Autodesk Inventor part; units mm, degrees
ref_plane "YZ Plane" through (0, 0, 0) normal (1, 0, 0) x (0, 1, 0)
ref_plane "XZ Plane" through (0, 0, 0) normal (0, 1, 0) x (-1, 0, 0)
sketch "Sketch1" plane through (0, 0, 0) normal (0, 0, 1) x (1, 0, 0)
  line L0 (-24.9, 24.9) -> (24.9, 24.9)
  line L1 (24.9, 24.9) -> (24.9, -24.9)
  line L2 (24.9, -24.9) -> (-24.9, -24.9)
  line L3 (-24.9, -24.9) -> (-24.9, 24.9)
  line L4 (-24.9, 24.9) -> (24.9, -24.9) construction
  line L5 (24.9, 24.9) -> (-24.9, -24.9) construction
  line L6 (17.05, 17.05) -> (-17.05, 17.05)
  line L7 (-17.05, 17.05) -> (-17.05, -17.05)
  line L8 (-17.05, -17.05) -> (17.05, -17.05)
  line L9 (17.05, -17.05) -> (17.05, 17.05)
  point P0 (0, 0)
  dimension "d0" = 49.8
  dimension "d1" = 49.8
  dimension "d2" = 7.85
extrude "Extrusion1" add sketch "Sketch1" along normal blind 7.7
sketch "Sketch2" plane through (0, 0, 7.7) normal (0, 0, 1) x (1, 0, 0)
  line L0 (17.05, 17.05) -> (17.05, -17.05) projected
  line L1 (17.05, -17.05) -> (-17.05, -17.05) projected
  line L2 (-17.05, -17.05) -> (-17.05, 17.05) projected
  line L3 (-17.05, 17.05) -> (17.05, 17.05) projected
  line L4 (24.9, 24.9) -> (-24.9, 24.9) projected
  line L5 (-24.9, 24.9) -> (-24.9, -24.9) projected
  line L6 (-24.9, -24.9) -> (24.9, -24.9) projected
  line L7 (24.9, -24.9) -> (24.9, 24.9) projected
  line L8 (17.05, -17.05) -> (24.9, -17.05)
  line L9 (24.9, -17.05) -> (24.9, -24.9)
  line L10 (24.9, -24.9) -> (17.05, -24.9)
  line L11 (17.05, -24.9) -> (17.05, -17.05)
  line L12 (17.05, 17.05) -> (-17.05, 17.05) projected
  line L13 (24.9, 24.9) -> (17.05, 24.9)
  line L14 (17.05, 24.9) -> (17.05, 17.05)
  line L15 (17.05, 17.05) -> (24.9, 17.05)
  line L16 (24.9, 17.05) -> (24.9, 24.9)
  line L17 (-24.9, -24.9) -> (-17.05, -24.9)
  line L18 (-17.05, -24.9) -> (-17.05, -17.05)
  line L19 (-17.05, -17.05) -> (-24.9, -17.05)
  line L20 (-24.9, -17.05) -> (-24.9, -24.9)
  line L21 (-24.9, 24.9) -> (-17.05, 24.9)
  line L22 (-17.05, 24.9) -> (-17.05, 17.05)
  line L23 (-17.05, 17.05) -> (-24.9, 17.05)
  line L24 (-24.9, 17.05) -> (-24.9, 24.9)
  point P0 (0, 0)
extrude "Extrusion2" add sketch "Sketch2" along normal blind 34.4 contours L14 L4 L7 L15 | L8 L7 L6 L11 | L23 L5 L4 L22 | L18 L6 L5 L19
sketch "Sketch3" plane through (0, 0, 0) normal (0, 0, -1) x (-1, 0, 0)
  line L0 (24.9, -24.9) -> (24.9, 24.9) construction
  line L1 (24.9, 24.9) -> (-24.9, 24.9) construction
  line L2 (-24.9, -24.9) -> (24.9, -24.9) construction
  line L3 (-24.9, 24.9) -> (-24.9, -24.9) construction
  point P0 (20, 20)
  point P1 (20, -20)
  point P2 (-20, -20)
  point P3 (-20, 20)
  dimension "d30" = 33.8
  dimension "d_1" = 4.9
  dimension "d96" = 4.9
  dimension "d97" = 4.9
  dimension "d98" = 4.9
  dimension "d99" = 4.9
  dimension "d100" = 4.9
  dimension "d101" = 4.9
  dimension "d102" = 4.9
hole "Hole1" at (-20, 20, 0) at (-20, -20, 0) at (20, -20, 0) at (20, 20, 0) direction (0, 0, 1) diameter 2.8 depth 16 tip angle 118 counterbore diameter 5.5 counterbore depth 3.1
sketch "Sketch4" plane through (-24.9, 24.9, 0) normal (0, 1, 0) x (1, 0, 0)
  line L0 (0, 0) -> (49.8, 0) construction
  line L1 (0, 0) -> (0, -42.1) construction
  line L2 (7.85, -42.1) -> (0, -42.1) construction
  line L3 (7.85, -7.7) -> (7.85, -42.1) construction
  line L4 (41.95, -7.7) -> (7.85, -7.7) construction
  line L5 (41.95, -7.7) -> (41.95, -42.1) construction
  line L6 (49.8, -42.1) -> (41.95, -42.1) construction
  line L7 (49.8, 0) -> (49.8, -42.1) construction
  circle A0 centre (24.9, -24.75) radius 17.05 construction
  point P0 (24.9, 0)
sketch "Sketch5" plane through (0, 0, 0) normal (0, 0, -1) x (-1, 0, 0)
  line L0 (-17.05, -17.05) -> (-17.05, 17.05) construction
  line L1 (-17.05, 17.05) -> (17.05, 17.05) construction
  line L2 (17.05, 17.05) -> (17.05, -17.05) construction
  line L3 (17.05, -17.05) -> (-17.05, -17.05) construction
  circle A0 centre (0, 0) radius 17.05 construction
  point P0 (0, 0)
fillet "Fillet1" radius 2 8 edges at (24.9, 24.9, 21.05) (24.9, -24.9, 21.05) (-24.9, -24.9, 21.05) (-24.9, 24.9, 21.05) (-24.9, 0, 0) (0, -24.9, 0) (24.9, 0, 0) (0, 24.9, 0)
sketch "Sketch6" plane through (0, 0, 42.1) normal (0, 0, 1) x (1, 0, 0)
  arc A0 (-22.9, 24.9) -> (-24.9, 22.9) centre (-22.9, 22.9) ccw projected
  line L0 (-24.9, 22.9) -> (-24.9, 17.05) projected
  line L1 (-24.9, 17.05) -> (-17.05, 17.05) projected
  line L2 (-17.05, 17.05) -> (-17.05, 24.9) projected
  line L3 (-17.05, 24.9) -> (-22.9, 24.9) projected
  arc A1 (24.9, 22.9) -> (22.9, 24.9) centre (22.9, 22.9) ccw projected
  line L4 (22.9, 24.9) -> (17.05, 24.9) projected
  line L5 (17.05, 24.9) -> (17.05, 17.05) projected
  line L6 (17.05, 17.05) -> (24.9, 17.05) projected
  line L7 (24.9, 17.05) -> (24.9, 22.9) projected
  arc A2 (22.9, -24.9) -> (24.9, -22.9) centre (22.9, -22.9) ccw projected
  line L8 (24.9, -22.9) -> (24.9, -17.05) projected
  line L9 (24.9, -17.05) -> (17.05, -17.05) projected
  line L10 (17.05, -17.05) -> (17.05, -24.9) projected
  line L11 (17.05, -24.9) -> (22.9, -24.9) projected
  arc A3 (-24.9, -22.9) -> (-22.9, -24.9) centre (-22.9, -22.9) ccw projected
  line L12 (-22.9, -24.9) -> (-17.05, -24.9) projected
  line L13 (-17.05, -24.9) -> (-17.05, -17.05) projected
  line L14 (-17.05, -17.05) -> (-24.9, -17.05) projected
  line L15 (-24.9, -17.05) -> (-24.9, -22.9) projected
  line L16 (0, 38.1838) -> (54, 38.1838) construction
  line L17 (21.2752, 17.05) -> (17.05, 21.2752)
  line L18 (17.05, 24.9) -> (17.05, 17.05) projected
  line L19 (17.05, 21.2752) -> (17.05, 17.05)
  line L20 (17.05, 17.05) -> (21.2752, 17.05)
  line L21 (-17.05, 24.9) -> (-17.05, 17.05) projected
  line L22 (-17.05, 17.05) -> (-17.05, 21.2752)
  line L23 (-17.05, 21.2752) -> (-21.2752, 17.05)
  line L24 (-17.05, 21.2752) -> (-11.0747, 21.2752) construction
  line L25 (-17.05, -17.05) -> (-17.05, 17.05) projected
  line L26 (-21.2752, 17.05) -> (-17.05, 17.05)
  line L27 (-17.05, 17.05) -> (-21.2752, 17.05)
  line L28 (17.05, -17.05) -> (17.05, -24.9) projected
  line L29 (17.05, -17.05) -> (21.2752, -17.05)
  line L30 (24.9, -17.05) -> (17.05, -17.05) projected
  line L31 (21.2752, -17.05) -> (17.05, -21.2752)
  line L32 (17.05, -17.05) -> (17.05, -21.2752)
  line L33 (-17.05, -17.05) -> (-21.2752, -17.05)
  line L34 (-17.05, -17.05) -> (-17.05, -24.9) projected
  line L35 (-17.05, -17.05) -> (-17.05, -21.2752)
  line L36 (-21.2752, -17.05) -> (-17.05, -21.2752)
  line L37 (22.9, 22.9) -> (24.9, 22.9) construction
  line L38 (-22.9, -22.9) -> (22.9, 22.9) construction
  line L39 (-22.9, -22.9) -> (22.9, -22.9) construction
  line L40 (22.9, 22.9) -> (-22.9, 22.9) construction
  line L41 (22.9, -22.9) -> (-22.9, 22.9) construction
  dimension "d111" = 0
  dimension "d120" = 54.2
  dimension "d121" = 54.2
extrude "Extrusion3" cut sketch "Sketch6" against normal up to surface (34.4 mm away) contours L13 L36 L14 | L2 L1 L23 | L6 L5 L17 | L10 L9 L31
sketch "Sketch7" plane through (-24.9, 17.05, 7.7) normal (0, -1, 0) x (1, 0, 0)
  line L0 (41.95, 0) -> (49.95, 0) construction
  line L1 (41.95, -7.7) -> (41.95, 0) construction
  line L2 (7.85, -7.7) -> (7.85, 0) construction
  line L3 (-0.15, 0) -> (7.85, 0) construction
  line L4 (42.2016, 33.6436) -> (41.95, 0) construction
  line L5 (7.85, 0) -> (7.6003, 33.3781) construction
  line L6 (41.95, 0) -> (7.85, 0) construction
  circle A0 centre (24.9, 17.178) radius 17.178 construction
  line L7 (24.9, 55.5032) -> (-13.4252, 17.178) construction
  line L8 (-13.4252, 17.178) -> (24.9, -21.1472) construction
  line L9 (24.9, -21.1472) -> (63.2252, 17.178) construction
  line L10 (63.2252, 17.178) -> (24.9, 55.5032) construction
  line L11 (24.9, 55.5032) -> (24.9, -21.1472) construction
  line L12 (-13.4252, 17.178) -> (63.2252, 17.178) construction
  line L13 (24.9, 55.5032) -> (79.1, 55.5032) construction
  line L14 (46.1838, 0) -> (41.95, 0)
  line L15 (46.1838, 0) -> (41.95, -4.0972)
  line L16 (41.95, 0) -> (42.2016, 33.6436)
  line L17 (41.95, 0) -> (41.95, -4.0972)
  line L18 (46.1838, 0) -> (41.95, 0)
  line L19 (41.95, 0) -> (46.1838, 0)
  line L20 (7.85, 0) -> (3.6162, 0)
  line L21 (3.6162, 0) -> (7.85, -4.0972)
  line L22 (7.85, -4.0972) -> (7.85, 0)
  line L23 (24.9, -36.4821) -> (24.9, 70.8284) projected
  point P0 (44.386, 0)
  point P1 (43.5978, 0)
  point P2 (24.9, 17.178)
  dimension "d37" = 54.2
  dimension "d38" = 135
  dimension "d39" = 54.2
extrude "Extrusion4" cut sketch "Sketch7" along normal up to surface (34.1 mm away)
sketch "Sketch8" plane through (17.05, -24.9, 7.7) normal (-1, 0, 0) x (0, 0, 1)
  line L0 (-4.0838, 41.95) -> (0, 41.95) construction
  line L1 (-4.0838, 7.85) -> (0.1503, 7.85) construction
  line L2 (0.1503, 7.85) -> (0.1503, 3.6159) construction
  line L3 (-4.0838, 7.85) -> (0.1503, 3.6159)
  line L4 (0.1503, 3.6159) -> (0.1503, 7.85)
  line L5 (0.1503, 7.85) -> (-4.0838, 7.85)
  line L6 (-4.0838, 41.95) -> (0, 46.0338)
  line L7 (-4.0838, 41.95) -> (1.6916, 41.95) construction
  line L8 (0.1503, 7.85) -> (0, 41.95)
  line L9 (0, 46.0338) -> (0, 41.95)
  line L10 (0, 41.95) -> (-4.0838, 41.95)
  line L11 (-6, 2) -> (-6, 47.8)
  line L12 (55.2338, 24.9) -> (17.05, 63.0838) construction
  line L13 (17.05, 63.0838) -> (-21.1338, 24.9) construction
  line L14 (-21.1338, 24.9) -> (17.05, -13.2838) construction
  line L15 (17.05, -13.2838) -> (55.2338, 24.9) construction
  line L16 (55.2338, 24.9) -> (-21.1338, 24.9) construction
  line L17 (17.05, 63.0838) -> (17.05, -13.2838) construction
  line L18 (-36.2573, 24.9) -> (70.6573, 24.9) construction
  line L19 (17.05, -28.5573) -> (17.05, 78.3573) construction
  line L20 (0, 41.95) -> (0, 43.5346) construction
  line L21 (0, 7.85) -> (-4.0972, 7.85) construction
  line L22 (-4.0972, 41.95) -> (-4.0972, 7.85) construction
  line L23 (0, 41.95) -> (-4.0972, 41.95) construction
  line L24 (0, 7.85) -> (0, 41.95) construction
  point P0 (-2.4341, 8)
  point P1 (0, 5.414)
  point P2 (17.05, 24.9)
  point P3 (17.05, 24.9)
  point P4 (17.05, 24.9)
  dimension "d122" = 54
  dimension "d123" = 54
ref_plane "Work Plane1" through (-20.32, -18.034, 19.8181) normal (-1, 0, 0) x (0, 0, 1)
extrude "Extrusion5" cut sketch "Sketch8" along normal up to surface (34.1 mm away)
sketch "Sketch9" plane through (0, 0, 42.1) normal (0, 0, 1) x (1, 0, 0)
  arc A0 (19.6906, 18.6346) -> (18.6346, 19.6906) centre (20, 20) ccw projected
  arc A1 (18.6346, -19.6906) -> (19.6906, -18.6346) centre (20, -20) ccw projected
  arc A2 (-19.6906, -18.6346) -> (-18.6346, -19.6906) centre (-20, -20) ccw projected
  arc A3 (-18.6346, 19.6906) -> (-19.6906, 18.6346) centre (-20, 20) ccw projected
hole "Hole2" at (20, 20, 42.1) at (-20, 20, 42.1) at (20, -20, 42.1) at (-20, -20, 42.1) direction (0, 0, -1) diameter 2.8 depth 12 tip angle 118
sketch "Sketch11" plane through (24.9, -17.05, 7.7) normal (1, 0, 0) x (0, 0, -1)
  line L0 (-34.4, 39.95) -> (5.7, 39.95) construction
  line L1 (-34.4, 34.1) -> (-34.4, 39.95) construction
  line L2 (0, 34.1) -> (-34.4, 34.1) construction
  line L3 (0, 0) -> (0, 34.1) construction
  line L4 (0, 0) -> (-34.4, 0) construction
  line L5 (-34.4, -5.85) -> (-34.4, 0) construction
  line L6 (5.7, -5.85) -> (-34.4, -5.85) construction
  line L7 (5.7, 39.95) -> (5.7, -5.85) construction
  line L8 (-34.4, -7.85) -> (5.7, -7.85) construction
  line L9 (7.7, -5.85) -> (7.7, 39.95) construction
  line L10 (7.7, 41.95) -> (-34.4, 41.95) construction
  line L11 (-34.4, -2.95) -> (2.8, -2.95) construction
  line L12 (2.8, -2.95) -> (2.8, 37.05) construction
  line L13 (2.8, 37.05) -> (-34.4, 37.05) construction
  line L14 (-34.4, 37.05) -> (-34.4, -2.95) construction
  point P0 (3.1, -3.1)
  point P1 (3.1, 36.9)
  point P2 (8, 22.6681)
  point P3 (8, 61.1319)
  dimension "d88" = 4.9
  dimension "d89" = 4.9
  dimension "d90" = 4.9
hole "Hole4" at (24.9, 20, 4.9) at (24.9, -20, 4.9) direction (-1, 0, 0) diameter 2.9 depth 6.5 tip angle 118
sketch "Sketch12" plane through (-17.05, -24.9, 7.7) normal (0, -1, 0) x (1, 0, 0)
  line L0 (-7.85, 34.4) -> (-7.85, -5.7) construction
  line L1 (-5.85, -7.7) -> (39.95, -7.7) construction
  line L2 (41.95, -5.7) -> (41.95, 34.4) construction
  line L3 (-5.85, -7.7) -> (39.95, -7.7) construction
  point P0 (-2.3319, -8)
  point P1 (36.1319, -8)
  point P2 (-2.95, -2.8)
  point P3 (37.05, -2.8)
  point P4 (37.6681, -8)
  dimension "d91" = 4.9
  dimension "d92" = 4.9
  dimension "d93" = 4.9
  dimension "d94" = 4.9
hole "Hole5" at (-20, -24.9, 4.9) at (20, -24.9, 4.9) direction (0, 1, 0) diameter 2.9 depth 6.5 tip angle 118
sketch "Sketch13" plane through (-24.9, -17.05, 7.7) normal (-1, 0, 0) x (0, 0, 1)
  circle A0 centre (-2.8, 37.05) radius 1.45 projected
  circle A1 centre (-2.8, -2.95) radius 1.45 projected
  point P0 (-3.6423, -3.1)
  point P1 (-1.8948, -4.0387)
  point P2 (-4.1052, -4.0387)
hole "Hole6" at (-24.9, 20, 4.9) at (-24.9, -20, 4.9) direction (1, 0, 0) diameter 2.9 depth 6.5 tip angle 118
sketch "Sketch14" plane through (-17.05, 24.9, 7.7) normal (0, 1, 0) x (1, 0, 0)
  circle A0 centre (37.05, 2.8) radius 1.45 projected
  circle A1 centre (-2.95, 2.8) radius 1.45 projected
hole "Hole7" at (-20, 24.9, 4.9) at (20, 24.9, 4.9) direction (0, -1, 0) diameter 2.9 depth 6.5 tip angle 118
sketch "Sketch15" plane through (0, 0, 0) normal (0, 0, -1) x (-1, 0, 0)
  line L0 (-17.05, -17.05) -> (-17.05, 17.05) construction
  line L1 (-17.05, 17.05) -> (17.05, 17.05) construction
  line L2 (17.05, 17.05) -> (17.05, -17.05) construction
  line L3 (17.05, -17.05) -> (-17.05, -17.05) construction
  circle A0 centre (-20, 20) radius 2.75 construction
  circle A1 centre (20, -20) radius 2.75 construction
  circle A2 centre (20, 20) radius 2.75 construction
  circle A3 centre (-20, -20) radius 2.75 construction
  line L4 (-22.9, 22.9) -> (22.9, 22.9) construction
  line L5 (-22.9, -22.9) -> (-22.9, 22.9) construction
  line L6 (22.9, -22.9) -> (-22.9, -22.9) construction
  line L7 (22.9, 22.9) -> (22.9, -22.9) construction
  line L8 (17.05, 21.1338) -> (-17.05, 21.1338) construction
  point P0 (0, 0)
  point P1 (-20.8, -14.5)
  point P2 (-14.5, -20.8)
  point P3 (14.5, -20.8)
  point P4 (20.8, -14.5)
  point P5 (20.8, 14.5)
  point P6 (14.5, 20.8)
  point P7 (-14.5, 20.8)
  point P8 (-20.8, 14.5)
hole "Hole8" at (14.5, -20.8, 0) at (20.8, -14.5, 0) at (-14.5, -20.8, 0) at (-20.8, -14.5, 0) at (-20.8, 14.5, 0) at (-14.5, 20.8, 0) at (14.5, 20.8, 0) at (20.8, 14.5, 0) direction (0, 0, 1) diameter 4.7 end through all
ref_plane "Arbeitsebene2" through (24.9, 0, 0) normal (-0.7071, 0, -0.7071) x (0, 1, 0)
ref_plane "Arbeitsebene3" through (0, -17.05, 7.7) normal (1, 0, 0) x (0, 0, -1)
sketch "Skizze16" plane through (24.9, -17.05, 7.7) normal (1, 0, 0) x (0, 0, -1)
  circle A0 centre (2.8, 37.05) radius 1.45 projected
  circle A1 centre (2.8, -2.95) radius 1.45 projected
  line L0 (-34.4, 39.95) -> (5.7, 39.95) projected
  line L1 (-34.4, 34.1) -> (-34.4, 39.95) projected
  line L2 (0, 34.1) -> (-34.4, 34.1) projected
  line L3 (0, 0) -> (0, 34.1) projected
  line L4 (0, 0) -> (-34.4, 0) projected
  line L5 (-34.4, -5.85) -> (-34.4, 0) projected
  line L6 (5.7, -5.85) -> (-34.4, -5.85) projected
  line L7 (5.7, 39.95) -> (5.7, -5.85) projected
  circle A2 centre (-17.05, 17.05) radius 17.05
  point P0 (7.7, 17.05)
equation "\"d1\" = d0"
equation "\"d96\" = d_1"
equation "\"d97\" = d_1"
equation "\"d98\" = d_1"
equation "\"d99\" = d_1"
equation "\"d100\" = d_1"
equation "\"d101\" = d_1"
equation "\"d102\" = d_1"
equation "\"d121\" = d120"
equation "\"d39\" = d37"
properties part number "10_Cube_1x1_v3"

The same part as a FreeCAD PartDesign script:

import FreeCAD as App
import Part
import Sketcher
from FreeCAD import Vector
Q = App.Units.Quantity


def edges_at(feature, points):
    """Names of the edges that pass closest to the given points."""
    edges = feature.Shape.Edges
    near = lambda p: min(range(len(edges)), key=lambda i: edges[i].distToShape(Part.Vertex(*p))[0])
    return sorted({f"Edge{near(p) + 1}" for p in points})

doc = App.newDocument("Part")
params = doc.addObject("Spreadsheet::Sheet", "Params")
for row, (alias, value) in enumerate([
    ("sketch1_width", "49.8 mm"),
    ("pad1_length", "7.7 mm"),
    ("sketch2_width", "7.85 mm"),
    ("pad2_length", "34.4 mm"),
    ("sketch3_diameter", "2.8 mm"),
    ("hole_diameter", "2.8 mm"),
    ("hole_depth", "16 mm"),
    ("hole_cbore_diameter", "5.5 mm"),
    ("hole_cbore_depth", "3.1 mm"),
    ("fillet_radius", "2 mm"),
    ("pocket1_length", "34.4 mm"),
    ("pocket2_length", "34.1 mm"),
    ("pocket3_length", "34.1 mm"),
    ("sketch7_diameter", "2.8 mm"),
    ("hole2_diameter", "2.8 mm"),
    ("hole2_depth", "12 mm"),
    ("sketch8_diameter", "2.9 mm"),
    ("hole3_diameter", "2.9 mm"),
    ("hole3_depth", "6.5 mm"),
    ("sketch9_diameter", "2.9 mm"),
    ("hole4_diameter", "2.9 mm"),
    ("hole4_depth", "6.5 mm"),
    ("sketch10_diameter", "2.9 mm"),
    ("hole5_diameter", "2.9 mm"),
    ("hole5_depth", "6.5 mm"),
    ("sketch11_diameter", "2.9 mm"),
    ("hole6_diameter", "2.9 mm"),
    ("hole6_depth", "6.5 mm"),
    ("sketch12_diameter", "4.7 mm"),
    ("hole7_diameter", "4.7 mm"),
], start=1):
    params.set(f"A{row}", alias)
    params.set(f"B{row}", "=" + value)
    params.setAlias(f"B{row}", alias)

body = doc.addObject("PartDesign::Body", "Body")

sketch1 = body.newObject("Sketcher::SketchObject", "Sketch")
sketch1.AttachmentSupport = (doc.getObject("XY_Plane"), [""])
sketch1.MapMode = "FlatFace"
sketch1.addGeometry([
    Part.LineSegment(Vector(24.9, 24.9, 0), Vector(-24.9, 24.9, 0)),
    Part.LineSegment(Vector(-24.9, 24.9, 0), Vector(-24.9, -24.9, 0)),
    Part.LineSegment(Vector(-24.9, -24.9, 0), Vector(24.9, -24.9, 0)),
    Part.LineSegment(Vector(24.9, -24.9, 0), Vector(24.9, 24.9, 0)),
    Part.LineSegment(Vector(-17.05, 17.05, 0), Vector(17.05, 17.05, 0)),
    Part.LineSegment(Vector(17.05, 17.05, 0), Vector(17.05, -17.05, 0)),
    Part.LineSegment(Vector(17.05, -17.05, 0), Vector(-17.05, -17.05, 0)),
    Part.LineSegment(Vector(-17.05, -17.05, 0), Vector(-17.05, 17.05, 0)),
], False)
sketch1.addConstraint([
    Sketcher.Constraint("Coincident", 0, 2, 1, 1),
    Sketcher.Constraint("Coincident", 1, 2, 2, 1),
    Sketcher.Constraint("Coincident", 2, 2, 3, 1),
    Sketcher.Constraint("Coincident", 3, 2, 0, 1),
    Sketcher.Constraint("Coincident", 4, 2, 5, 1),
    Sketcher.Constraint("Coincident", 5, 2, 6, 1),
    Sketcher.Constraint("Coincident", 6, 2, 7, 1),
    Sketcher.Constraint("Coincident", 7, 2, 4, 1),
    Sketcher.Constraint("Horizontal", 0),
    Sketcher.Constraint("Vertical", 1),
    Sketcher.Constraint("Horizontal", 2),
    Sketcher.Constraint("Vertical", 3),
    Sketcher.Constraint("Horizontal", 4),
    Sketcher.Constraint("Vertical", 5),
    Sketcher.Constraint("Horizontal", 6),
    Sketcher.Constraint("Vertical", 7),
    Sketcher.Constraint("Symmetric", 0, 2, 2, 2, -1, 1),
    Sketcher.Constraint("Symmetric", 4, 2, 6, 2, -1, 1),
    Sketcher.Constraint("Equal", 2, 1),
    Sketcher.Constraint("Equal", 6, 5),
    Sketcher.Constraint("DistanceX", 0, 2, 0, 1, Q("49.8 mm")),
    Sketcher.Constraint("DistanceX", 4, 2, 3, 2, Q("7.85 mm")),
])
sketch1.setExpression("Constraints[20]", "Params.sketch1_width")
pad1 = body.newObject("PartDesign::Pad", "Pad")
pad1.Profile = sketch1
pad1.setExpression("Length", "Params.pad1_length")

sketch2 = body.newObject("Sketcher::SketchObject", "Sketch001")
sketch2.AttachmentSupport = (doc.getObject("XY_Plane"), [""])
sketch2.MapMode = "FlatFace"
sketch2.AttachmentOffset = App.Placement(Vector(0, 0, 7.7), App.Rotation())
sketch2.addGeometry([
    Part.LineSegment(Vector(17.05, 24.9, 0), Vector(17.05, 17.05, 0)),
    Part.LineSegment(Vector(17.05, 17.05, 0), Vector(24.9, 17.05, 0)),
    Part.LineSegment(Vector(24.9, 17.05, 0), Vector(24.9, 24.9, 0)),
    Part.LineSegment(Vector(24.9, 24.9, 0), Vector(17.05, 24.9, 0)),
    Part.LineSegment(Vector(24.9, -17.05, 0), Vector(17.05, -17.05, 0)),
    Part.LineSegment(Vector(17.05, -17.05, 0), Vector(17.05, -24.9, 0)),
    Part.LineSegment(Vector(17.05, -24.9, 0), Vector(24.9, -24.9, 0)),
    Part.LineSegment(Vector(24.9, -24.9, 0), Vector(24.9, -17.05, 0)),
    Part.LineSegment(Vector(-24.9, 17.05, 0), Vector(-17.05, 17.05, 0)),
    Part.LineSegment(Vector(-17.05, 17.05, 0), Vector(-17.05, 24.9, 0)),
    Part.LineSegment(Vector(-17.05, 24.9, 0), Vector(-24.9, 24.9, 0)),
    Part.LineSegment(Vector(-24.9, 24.9, 0), Vector(-24.9, 17.05, 0)),
    Part.LineSegment(Vector(-17.05, -24.9, 0), Vector(-17.05, -17.05, 0)),
    Part.LineSegment(Vector(-17.05, -17.05, 0), Vector(-24.9, -17.05, 0)),
    Part.LineSegment(Vector(-24.9, -17.05, 0), Vector(-24.9, -24.9, 0)),
    Part.LineSegment(Vector(-24.9, -24.9, 0), Vector(-17.05, -24.9, 0)),
], False)
sketch2.addConstraint([
    Sketcher.Constraint("Coincident", 0, 2, 1, 1),
    Sketcher.Constraint("Coincident", 1, 2, 2, 1),
    Sketcher.Constraint("Coincident", 2, 2, 3, 1),
    Sketcher.Constraint("Coincident", 3, 2, 0, 1),
    Sketcher.Constraint("Coincident", 4, 2, 5, 1),
    Sketcher.Constraint("Coincident", 5, 2, 6, 1),
    Sketcher.Constraint("Coincident", 6, 2, 7, 1),
    Sketcher.Constraint("Coincident", 7, 2, 4, 1),
    Sketcher.Constraint("Coincident", 8, 2, 9, 1),
    Sketcher.Constraint("Coincident", 9, 2, 10, 1),
    Sketcher.Constraint("Coincident", 10, 2, 11, 1),
    Sketcher.Constraint("Coincident", 11, 2, 8, 1),
    Sketcher.Constraint("Coincident", 12, 2, 13, 1),
    Sketcher.Constraint("Coincident", 13, 2, 14, 1),
    Sketcher.Constraint("Coincident", 14, 2, 15, 1),
    Sketcher.Constraint("Coincident", 15, 2, 12, 1),
    Sketcher.Constraint("Vertical", 0),
    Sketcher.Constraint("Horizontal", 1),
    Sketcher.Constraint("Vertical", 2),
    Sketcher.Constraint("Horizontal", 3),
    Sketcher.Constraint("Horizontal", 4),
    Sketcher.Constraint("Vertical", 5),
    Sketcher.Constraint("Horizontal", 6),
    Sketcher.Constraint("Vertical", 7),
    Sketcher.Constraint("Horizontal", 8),
    Sketcher.Constraint("Vertical", 9),
    Sketcher.Constraint("Horizontal", 10),
    Sketcher.Constraint("Vertical", 11),
    Sketcher.Constraint("Vertical", 12),
    Sketcher.Constraint("Horizontal", 13),
    Sketcher.Constraint("Vertical", 14),
    Sketcher.Constraint("Horizontal", 15),
    Sketcher.Constraint("Symmetric", 4, 2, 8, 2, -1, 1),
    Sketcher.Constraint("Symmetric", 6, 2, 10, 2, -1, 1),
    Sketcher.Constraint("Symmetric", 0, 2, 12, 2, -1, 1),
    Sketcher.Constraint("Symmetric", 2, 2, 14, 2, -1, 1),
    Sketcher.Constraint("Symmetric", 0, 2, 8, 2, -2),
    Sketcher.Constraint("Symmetric", 2, 2, 10, 2, -2),
    Sketcher.Constraint("Equal", 15, 0),
    Sketcher.Constraint("DistanceX", 1, 1, 1, 2, Q("7.85 mm")),
    Sketcher.Constraint("DistanceX", -1, 1, 1, 2, Q("24.9 mm")),
    Sketcher.Constraint("DistanceY", -1, 1, 2, 2, Q("24.9 mm")),
])
sketch2.setExpression("Constraints[39]", "Params.sketch2_width")
pad2 = body.newObject("PartDesign::Pad", "Pad001")
pad2.Profile = sketch2
pad2.setExpression("Length", "Params.pad2_length")

sketch3 = body.newObject("Sketcher::SketchObject", "Sketch002")
sketch3.AttachmentSupport = (doc.getObject("XY_Plane"), [""])
sketch3.MapMode = "FlatFace"
sketch3.addGeometry([
    Part.Circle(Vector(-20, 20, 0), Vector(0, 0, 1), 1.4),
    Part.Circle(Vector(-20, -20, 0), Vector(0, 0, 1), 1.4),
    Part.Circle(Vector(20, -20, 0), Vector(0, 0, 1), 1.4),
    Part.Circle(Vector(20, 20, 0), Vector(0, 0, 1), 1.4),
], False)
sketch3.addConstraint([
    Sketcher.Constraint("Equal", 0, 1),
    Sketcher.Constraint("Equal", 1, 2),
    Sketcher.Constraint("Equal", 2, 3),
    Sketcher.Constraint("Symmetric", 0, 3, 2, 3, -1, 1),
    Sketcher.Constraint("Symmetric", 1, 3, 3, 3, -1, 1),
    Sketcher.Constraint("Symmetric", 1, 3, 2, 3, -2),
    Sketcher.Constraint("Diameter", 0, Q("2.8 mm")),
    Sketcher.Constraint("DistanceX", 0, 3, -1, 1, Q("20 mm")),
    Sketcher.Constraint("DistanceY", -1, 1, 0, 3, Q("20 mm")),
])
sketch3.setExpression("Constraints[6]", "Params.sketch3_diameter")
doc.recompute()
hole = body.newObject("PartDesign::Hole", "Hole")
hole.Profile = sketch3
hole.ThreadType = "None"
hole.setExpression("Diameter", "Params.hole_diameter")
hole.DepthType = "Dimension"
hole.setExpression("Depth", "Params.hole_depth")
hole.DrillPoint = "Angled"
hole.DrillPointAngle = 118
hole.HoleCutType = "Counterbore"
hole.setExpression("HoleCutDiameter", "Params.hole_cbore_diameter")
hole.setExpression("HoleCutDepth", "Params.hole_cbore_depth")
hole.Reversed = True
doc.recompute()

fillet = body.newObject("PartDesign::Fillet", "Fillet")
fillet.Base = (hole, edges_at(hole, [
    (24.9, 24.9, 21.05),
    (24.9, -24.9, 21.05),
    (-24.9, -24.9, 21.05),
    (-24.9, 24.9, 21.05),
    (-24.9, 0, 0),
    (0, -24.9, 0),
    (24.9, 0, 0),
    (0, 24.9, 0),
]))
fillet.setExpression("Radius", "Params.fillet_radius")

sketch4 = body.newObject("Sketcher::SketchObject", "Sketch003")
sketch4.AttachmentSupport = (doc.getObject("XY_Plane"), [""])
sketch4.MapMode = "FlatFace"
sketch4.AttachmentOffset = App.Placement(Vector(0, 0, 42.1), App.Rotation())
sketch4.addGeometry([
    Part.LineSegment(Vector(-17.05, -21.2752, 0), Vector(-17.05, -17.05, 0)),
    Part.LineSegment(Vector(-17.05, -17.05, 0), Vector(-21.2752, -17.05, 0)),
    Part.LineSegment(Vector(-21.2752, -17.05, 0), Vector(-17.05, -21.2752, 0)),
    Part.LineSegment(Vector(-17.05, 17.05, 0), Vector(-17.05, 21.2752, 0)),
    Part.LineSegment(Vector(-17.05, 21.2752, 0), Vector(-21.2752, 17.05, 0)),
    Part.LineSegment(Vector(-21.2752, 17.05, 0), Vector(-17.05, 17.05, 0)),
    Part.LineSegment(Vector(17.05, 17.05, 0), Vector(21.2752, 17.05, 0)),
    Part.LineSegment(Vector(21.2752, 17.05, 0), Vector(17.05, 21.2752, 0)),
    Part.LineSegment(Vector(17.05, 21.2752, 0), Vector(17.05, 17.05, 0)),
    Part.LineSegment(Vector(17.05, -17.05, 0), Vector(17.05, -21.2752, 0)),
    Part.LineSegment(Vector(17.05, -21.2752, 0), Vector(21.2752, -17.05, 0)),
    Part.LineSegment(Vector(21.2752, -17.05, 0), Vector(17.05, -17.05, 0)),
], False)
sketch4.addConstraint([
    Sketcher.Constraint("Coincident", 0, 2, 1, 1),
    Sketcher.Constraint("Coincident", 1, 2, 2, 1),
    Sketcher.Constraint("Coincident", 2, 2, 0, 1),
    Sketcher.Constraint("Coincident", 3, 2, 4, 1),
    Sketcher.Constraint("Coincident", 4, 2, 5, 1),
    Sketcher.Constraint("Coincident", 5, 2, 3, 1),
    Sketcher.Constraint("Coincident", 6, 2, 7, 1),
    Sketcher.Constraint("Coincident", 7, 2, 8, 1),
    Sketcher.Constraint("Coincident", 8, 2, 6, 1),
    Sketcher.Constraint("Coincident", 9, 2, 10, 1),
    Sketcher.Constraint("Coincident", 10, 2, 11, 1),
    Sketcher.Constraint("Coincident", 11, 2, 9, 1),
    Sketcher.Constraint("Vertical", 0),
    Sketcher.Constraint("Horizontal", 1),
    Sketcher.Constraint("Vertical", 3),
    Sketcher.Constraint("Horizontal", 5),
    Sketcher.Constraint("Horizontal", 6),
    Sketcher.Constraint("Vertical", 8),
    Sketcher.Constraint("Vertical", 9),
    Sketcher.Constraint("Horizontal", 11),
    Sketcher.Constraint("Symmetric", 1, 2, 6, 2, -1, 1),
    Sketcher.Constraint("Symmetric", 2, 2, 7, 2, -1, 1),
    Sketcher.Constraint("Symmetric", 3, 2, 9, 2, -1, 1),
    Sketcher.Constraint("Symmetric", 4, 2, 10, 2, -1, 1),
    Sketcher.Constraint("Symmetric", 4, 2, 6, 2, -2),
    Sketcher.Constraint("Symmetric", 3, 2, 7, 2, -2),
    Sketcher.Constraint("Perpendicular", 2, 4),
    Sketcher.Constraint("DistanceY", 1, 2, 4, 2, Q("34.1 mm")),
    Sketcher.Constraint("DistanceX", 3, 2, 7, 2, Q("34.1 mm")),
    Sketcher.Constraint("DistanceX", 1, 2, 1, 1, Q("4.2252 mm")),
])
pocket1 = body.newObject("PartDesign::Pocket", "Pocket")
pocket1.Profile = sketch4
pocket1.setExpression("Length", "Params.pocket1_length")

sketch5 = body.newObject("Sketcher::SketchObject", "Sketch004")
sketch5.AttachmentSupport = (doc.getObject("XZ_Plane"), [""])
sketch5.MapMode = "FlatFace"
sketch5.AttachmentOffset = App.Placement(Vector(0, 0, -17.05), App.Rotation())
sketch5.addGeometry([
    Part.LineSegment(Vector(17.05, 3.6028, 0), Vector(21.2838, 7.7, 0)),
    Part.LineSegment(Vector(21.2838, 7.7, 0), Vector(17.05, 7.7, 0)),
    Part.LineSegment(Vector(17.05, 7.7, 0), Vector(17.05, 3.6028, 0)),
    Part.LineSegment(Vector(-17.05, 3.6028, 0), Vector(-17.05, 7.7, 0)),
    Part.LineSegment(Vector(-17.05, 7.7, 0), Vector(-21.2838, 7.7, 0)),
    Part.LineSegment(Vector(-21.2838, 7.7, 0), Vector(-17.05, 3.6028, 0)),
], False)
sketch5.addConstraint([
    Sketcher.Constraint("Coincident", 0, 2, 1, 1),
    Sketcher.Constraint("Coincident", 1, 2, 2, 1),
    Sketcher.Constraint("Coincident", 2, 2, 0, 1),
    Sketcher.Constraint("Coincident", 3, 2, 4, 1),
    Sketcher.Constraint("Coincident", 4, 2, 5, 1),
    Sketcher.Constraint("Coincident", 5, 2, 3, 1),
    Sketcher.Constraint("Horizontal", 1),
    Sketcher.Constraint("Vertical", 2),
    Sketcher.Constraint("Vertical", 3),
    Sketcher.Constraint("Horizontal", 4),
    Sketcher.Constraint("Symmetric", 1, 2, 3, 2, -2),
    Sketcher.Constraint("Horizontal", 2, 2, 5, 2),
    Sketcher.Constraint("Equal", 1, 4),
    Sketcher.Constraint("DistanceY", -1, 1, 0, 2, Q("7.7 mm")),
    Sketcher.Constraint("Angle", 0, Q("44.0606 deg")),
    Sketcher.Constraint("DistanceX", 3, 2, 1, 2, Q("34.1 mm")),
    Sketcher.Constraint("DistanceX", 1, 2, 1, 1, Q("4.2338 mm")),
])
pocket2 = body.newObject("PartDesign::Pocket", "Pocket001")
pocket2.Profile = sketch5
pocket2.setExpression("Length", "Params.pocket2_length")
pocket2.Reversed = True

sketch6 = body.newObject("Sketcher::SketchObject", "Sketch005")
sketch6.AttachmentSupport = (doc.getObject("YZ_Plane"), [""])
sketch6.MapMode = "FlatFace"
sketch6.AttachmentOffset = App.Placement(Vector(0, 0, 17.05), App.Rotation())
sketch6.addGeometry([
    Part.LineSegment(Vector(-17.05, 7.8503, 0), Vector(-17.05, 3.6162, 0)),
    Part.LineSegment(Vector(-17.05, 3.6162, 0), Vector(-21.2841, 7.8503, 0)),
    Part.LineSegment(Vector(-21.2841, 7.8503, 0), Vector(-17.05, 7.8503, 0)),
    Part.LineSegment(Vector(17.05, 3.6162, 0), Vector(17.05, 7.7, 0)),
    Part.LineSegment(Vector(17.05, 7.7, 0), Vector(21.1338, 7.7, 0)),
    Part.LineSegment(Vector(21.1338, 7.7, 0), Vector(17.05, 3.6162, 0)),
], False)
sketch6.addConstraint([
    Sketcher.Constraint("Coincident", 0, 2, 1, 1),
    Sketcher.Constraint("Coincident", 1, 2, 2, 1),
    Sketcher.Constraint("Coincident", 2, 2, 0, 1),
    Sketcher.Constraint("Coincident", 3, 2, 4, 1),
    Sketcher.Constraint("Coincident", 4, 2, 5, 1),
    Sketcher.Constraint("Coincident", 5, 2, 3, 1),
    Sketcher.Constraint("Vertical", 0),
    Sketcher.Constraint("Horizontal", 2),
    Sketcher.Constraint("Vertical", 3),
    Sketcher.Constraint("Horizontal", 4),
    Sketcher.Constraint("Symmetric", 0, 2, 5, 2, -2),
    Sketcher.Constraint("Perpendicular", 1, 5),
    Sketcher.Constraint("Equal", 2, 0),
    Sketcher.Constraint("DistanceY", -1, 1, 3, 2, Q("7.7 mm")),
    Sketcher.Constraint("DistanceX", 2, 2, 3, 2, Q("34.1 mm")),
    Sketcher.Constraint("DistanceX", 2, 1, 2, 2, Q("4.234 mm")),
    Sketcher.Constraint("DistanceX", 4, 1, 4, 2, Q("4.0838 mm")),
])
pocket3 = body.newObject("PartDesign::Pocket", "Pocket002")
pocket3.Profile = sketch6
pocket3.setExpression("Length", "Params.pocket3_length")

sketch7 = body.newObject("Sketcher::SketchObject", "Sketch006")
sketch7.AttachmentSupport = (doc.getObject("XY_Plane"), [""])
sketch7.MapMode = "FlatFace"
sketch7.AttachmentOffset = App.Placement(Vector(0, 0, 42.1), App.Rotation())
sketch7.addGeometry([
    Part.Circle(Vector(20, 20, 0), Vector(0, 0, 1), 1.4),
    Part.Circle(Vector(-20, 20, 0), Vector(0, 0, 1), 1.4),
    Part.Circle(Vector(20, -20, 0), Vector(0, 0, 1), 1.4),
    Part.Circle(Vector(-20, -20, 0), Vector(0, 0, 1), 1.4),
], False)
sketch7.addConstraint([
    Sketcher.Constraint("Equal", 0, 1),
    Sketcher.Constraint("Equal", 1, 2),
    Sketcher.Constraint("Equal", 2, 3),
    Sketcher.Constraint("Symmetric", 1, 3, 2, 3, -1, 1),
    Sketcher.Constraint("Symmetric", 0, 3, 3, 3, -1, 1),
    Sketcher.Constraint("Symmetric", 0, 3, 1, 3, -2),
    Sketcher.Constraint("Diameter", 0, Q("2.8 mm")),
    Sketcher.Constraint("DistanceX", -1, 1, 0, 3, Q("20 mm")),
    Sketcher.Constraint("DistanceY", -1, 1, 0, 3, Q("20 mm")),
])
sketch7.setExpression("Constraints[6]", "Params.sketch7_diameter")
doc.recompute()
hole2 = body.newObject("PartDesign::Hole", "Hole001")
hole2.Profile = sketch7
hole2.ThreadType = "None"
hole2.setExpression("Diameter", "Params.hole2_diameter")
hole2.DepthType = "Dimension"
hole2.setExpression("Depth", "Params.hole2_depth")
hole2.DrillPoint = "Angled"
hole2.DrillPointAngle = 118

sketch8 = body.newObject("Sketcher::SketchObject", "Sketch007")
sketch8.AttachmentSupport = (doc.getObject("YZ_Plane"), [""])
sketch8.MapMode = "FlatFace"
sketch8.AttachmentOffset = App.Placement(Vector(0, 0, 24.9), App.Rotation())
sketch8.addGeometry([
    Part.Circle(Vector(20, 4.9, 0), Vector(0, 0, 1), 1.45),
    Part.Circle(Vector(-20, 4.9, 0), Vector(0, 0, 1), 1.45),
], False)
sketch8.addConstraint([
    Sketcher.Constraint("Equal", 0, 1),
    Sketcher.Constraint("Symmetric", 0, 3, 1, 3, -2),
    Sketcher.Constraint("Diameter", 0, Q("2.9 mm")),
    Sketcher.Constraint("DistanceX", -1, 1, 0, 3, Q("20 mm")),
    Sketcher.Constraint("DistanceY", -1, 1, 0, 3, Q("4.9 mm")),
])
sketch8.setExpression("Constraints[2]", "Params.sketch8_diameter")
doc.recompute()
hole3 = body.newObject("PartDesign::Hole", "Hole002")
hole3.Profile = sketch8
hole3.ThreadType = "None"
hole3.setExpression("Diameter", "Params.hole3_diameter")
hole3.DepthType = "Dimension"
hole3.setExpression("Depth", "Params.hole3_depth")
hole3.DrillPoint = "Angled"
hole3.DrillPointAngle = 118

sketch9 = body.newObject("Sketcher::SketchObject", "Sketch008")
sketch9.AttachmentSupport = (doc.getObject("XZ_Plane"), [""])
sketch9.MapMode = "FlatFace"
sketch9.AttachmentOffset = App.Placement(Vector(0, 0, 24.9), App.Rotation())
sketch9.addGeometry([
    Part.Circle(Vector(-20, 4.9, 0), Vector(0, 0, 1), 1.45),
    Part.Circle(Vector(20, 4.9, 0), Vector(0, 0, 1), 1.45),
], False)
sketch9.addConstraint([
    Sketcher.Constraint("Equal", 0, 1),
    Sketcher.Constraint("Symmetric", 0, 3, 1, 3, -2),
    Sketcher.Constraint("Diameter", 0, Q("2.9 mm")),
    Sketcher.Constraint("DistanceX", 0, 3, -1, 1, Q("20 mm")),
    Sketcher.Constraint("DistanceY", -1, 1, 0, 3, Q("4.9 mm")),
])
sketch9.setExpression("Constraints[2]", "Params.sketch9_diameter")
doc.recompute()
hole4 = body.newObject("PartDesign::Hole", "Hole003")
hole4.Profile = sketch9
hole4.ThreadType = "None"
hole4.setExpression("Diameter", "Params.hole4_diameter")
hole4.DepthType = "Dimension"
hole4.setExpression("Depth", "Params.hole4_depth")
hole4.DrillPoint = "Angled"
hole4.DrillPointAngle = 118

sketch10 = body.newObject("Sketcher::SketchObject", "Sketch009")
sketch10.AttachmentSupport = (doc.getObject("YZ_Plane"), [""])
sketch10.MapMode = "FlatFace"
sketch10.AttachmentOffset = App.Placement(Vector(0, 0, -24.9), App.Rotation())
sketch10.addGeometry([
    Part.Circle(Vector(20, 4.9, 0), Vector(0, 0, 1), 1.45),
    Part.Circle(Vector(-20, 4.9, 0), Vector(0, 0, 1), 1.45),
], False)
sketch10.addConstraint([
    Sketcher.Constraint("Equal", 0, 1),
    Sketcher.Constraint("Symmetric", 0, 3, 1, 3, -2),
    Sketcher.Constraint("Diameter", 0, Q("2.9 mm")),
    Sketcher.Constraint("DistanceX", -1, 1, 0, 3, Q("20 mm")),
    Sketcher.Constraint("DistanceY", -1, 1, 0, 3, Q("4.9 mm")),
])
sketch10.setExpression("Constraints[2]", "Params.sketch10_diameter")
doc.recompute()
hole5 = body.newObject("PartDesign::Hole", "Hole004")
hole5.Profile = sketch10
hole5.ThreadType = "None"
hole5.setExpression("Diameter", "Params.hole5_diameter")
hole5.DepthType = "Dimension"
hole5.setExpression("Depth", "Params.hole5_depth")
hole5.DrillPoint = "Angled"
hole5.DrillPointAngle = 118
hole5.Reversed = True

sketch11 = body.newObject("Sketcher::SketchObject", "Sketch010")
sketch11.AttachmentSupport = (doc.getObject("XZ_Plane"), [""])
sketch11.MapMode = "FlatFace"
sketch11.AttachmentOffset = App.Placement(Vector(0, 0, -24.9), App.Rotation())
sketch11.addGeometry([
    Part.Circle(Vector(-20, 4.9, 0), Vector(0, 0, 1), 1.45),
    Part.Circle(Vector(20, 4.9, 0), Vector(0, 0, 1), 1.45),
], False)
sketch11.addConstraint([
    Sketcher.Constraint("Equal", 0, 1),
    Sketcher.Constraint("Symmetric", 0, 3, 1, 3, -2),
    Sketcher.Constraint("Diameter", 0, Q("2.9 mm")),
    Sketcher.Constraint("DistanceX", 0, 3, -1, 1, Q("20 mm")),
    Sketcher.Constraint("DistanceY", -1, 1, 0, 3, Q("4.9 mm")),
])
sketch11.setExpression("Constraints[2]", "Params.sketch11_diameter")
doc.recompute()
hole6 = body.newObject("PartDesign::Hole", "Hole005")
hole6.Profile = sketch11
hole6.ThreadType = "None"
hole6.setExpression("Diameter", "Params.hole6_diameter")
hole6.DepthType = "Dimension"
hole6.setExpression("Depth", "Params.hole6_depth")
hole6.DrillPoint = "Angled"
hole6.DrillPointAngle = 118
hole6.Reversed = True

sketch12 = body.newObject("Sketcher::SketchObject", "Sketch011")
sketch12.AttachmentSupport = (doc.getObject("XY_Plane"), [""])
sketch12.MapMode = "FlatFace"
sketch12.addGeometry([
    Part.Circle(Vector(14.5, -20.8, 0), Vector(0, 0, 1), 2.35),
    Part.Circle(Vector(20.8, -14.5, 0), Vector(0, 0, 1), 2.35),
    Part.Circle(Vector(-14.5, -20.8, 0), Vector(0, 0, 1), 2.35),
    Part.Circle(Vector(-20.8, -14.5, 0), Vector(0, 0, 1), 2.35),
    Part.Circle(Vector(-20.8, 14.5, 0), Vector(0, 0, 1), 2.35),
    Part.Circle(Vector(-14.5, 20.8, 0), Vector(0, 0, 1), 2.35),
    Part.Circle(Vector(14.5, 20.8, 0), Vector(0, 0, 1), 2.35),
    Part.Circle(Vector(20.8, 14.5, 0), Vector(0, 0, 1), 2.35),
], False)
sketch12.addConstraint([
    Sketcher.Constraint("Equal", 0, 1),
    Sketcher.Constraint("Equal", 1, 2),
    Sketcher.Constraint("Equal", 2, 3),
    Sketcher.Constraint("Equal", 3, 4),
    Sketcher.Constraint("Equal", 4, 5),
    Sketcher.Constraint("Equal", 5, 6),
    Sketcher.Constraint("Equal", 6, 7),
    Sketcher.Constraint("Symmetric", 1, 3, 4, 3, -1, 1),
    Sketcher.Constraint("Symmetric", 0, 3, 5, 3, -1, 1),
    Sketcher.Constraint("Symmetric", 2, 3, 6, 3, -1, 1),
    Sketcher.Constraint("Symmetric", 3, 3, 7, 3, -1, 1),
    Sketcher.Constraint("Symmetric", 0, 3, 2, 3, -2),
    Sketcher.Constraint("Symmetric", 1, 3, 3, 3, -2),
    Sketcher.Constraint("Diameter", 0, Q("4.7 mm")),
    Sketcher.Constraint("DistanceX", 2, 3, 0, 3, Q("29 mm")),
    Sketcher.Constraint("DistanceY", 3, 3, 4, 3, Q("29 mm")),
    Sketcher.Constraint("DistanceY", 0, 3, -1, 1, Q("20.8 mm")),
    Sketcher.Constraint("DistanceX", -1, 1, 1, 3, Q("20.8 mm")),
])
sketch12.setExpression("Constraints[13]", "Params.sketch12_diameter")
doc.recompute()
hole7 = body.newObject("PartDesign::Hole", "Hole006")
hole7.Profile = sketch12
hole7.ThreadType = "None"
hole7.setExpression("Diameter", "Params.hole7_diameter")
hole7.DepthType = "ThroughAll"
hole7.Reversed = True

doc.recompute()
